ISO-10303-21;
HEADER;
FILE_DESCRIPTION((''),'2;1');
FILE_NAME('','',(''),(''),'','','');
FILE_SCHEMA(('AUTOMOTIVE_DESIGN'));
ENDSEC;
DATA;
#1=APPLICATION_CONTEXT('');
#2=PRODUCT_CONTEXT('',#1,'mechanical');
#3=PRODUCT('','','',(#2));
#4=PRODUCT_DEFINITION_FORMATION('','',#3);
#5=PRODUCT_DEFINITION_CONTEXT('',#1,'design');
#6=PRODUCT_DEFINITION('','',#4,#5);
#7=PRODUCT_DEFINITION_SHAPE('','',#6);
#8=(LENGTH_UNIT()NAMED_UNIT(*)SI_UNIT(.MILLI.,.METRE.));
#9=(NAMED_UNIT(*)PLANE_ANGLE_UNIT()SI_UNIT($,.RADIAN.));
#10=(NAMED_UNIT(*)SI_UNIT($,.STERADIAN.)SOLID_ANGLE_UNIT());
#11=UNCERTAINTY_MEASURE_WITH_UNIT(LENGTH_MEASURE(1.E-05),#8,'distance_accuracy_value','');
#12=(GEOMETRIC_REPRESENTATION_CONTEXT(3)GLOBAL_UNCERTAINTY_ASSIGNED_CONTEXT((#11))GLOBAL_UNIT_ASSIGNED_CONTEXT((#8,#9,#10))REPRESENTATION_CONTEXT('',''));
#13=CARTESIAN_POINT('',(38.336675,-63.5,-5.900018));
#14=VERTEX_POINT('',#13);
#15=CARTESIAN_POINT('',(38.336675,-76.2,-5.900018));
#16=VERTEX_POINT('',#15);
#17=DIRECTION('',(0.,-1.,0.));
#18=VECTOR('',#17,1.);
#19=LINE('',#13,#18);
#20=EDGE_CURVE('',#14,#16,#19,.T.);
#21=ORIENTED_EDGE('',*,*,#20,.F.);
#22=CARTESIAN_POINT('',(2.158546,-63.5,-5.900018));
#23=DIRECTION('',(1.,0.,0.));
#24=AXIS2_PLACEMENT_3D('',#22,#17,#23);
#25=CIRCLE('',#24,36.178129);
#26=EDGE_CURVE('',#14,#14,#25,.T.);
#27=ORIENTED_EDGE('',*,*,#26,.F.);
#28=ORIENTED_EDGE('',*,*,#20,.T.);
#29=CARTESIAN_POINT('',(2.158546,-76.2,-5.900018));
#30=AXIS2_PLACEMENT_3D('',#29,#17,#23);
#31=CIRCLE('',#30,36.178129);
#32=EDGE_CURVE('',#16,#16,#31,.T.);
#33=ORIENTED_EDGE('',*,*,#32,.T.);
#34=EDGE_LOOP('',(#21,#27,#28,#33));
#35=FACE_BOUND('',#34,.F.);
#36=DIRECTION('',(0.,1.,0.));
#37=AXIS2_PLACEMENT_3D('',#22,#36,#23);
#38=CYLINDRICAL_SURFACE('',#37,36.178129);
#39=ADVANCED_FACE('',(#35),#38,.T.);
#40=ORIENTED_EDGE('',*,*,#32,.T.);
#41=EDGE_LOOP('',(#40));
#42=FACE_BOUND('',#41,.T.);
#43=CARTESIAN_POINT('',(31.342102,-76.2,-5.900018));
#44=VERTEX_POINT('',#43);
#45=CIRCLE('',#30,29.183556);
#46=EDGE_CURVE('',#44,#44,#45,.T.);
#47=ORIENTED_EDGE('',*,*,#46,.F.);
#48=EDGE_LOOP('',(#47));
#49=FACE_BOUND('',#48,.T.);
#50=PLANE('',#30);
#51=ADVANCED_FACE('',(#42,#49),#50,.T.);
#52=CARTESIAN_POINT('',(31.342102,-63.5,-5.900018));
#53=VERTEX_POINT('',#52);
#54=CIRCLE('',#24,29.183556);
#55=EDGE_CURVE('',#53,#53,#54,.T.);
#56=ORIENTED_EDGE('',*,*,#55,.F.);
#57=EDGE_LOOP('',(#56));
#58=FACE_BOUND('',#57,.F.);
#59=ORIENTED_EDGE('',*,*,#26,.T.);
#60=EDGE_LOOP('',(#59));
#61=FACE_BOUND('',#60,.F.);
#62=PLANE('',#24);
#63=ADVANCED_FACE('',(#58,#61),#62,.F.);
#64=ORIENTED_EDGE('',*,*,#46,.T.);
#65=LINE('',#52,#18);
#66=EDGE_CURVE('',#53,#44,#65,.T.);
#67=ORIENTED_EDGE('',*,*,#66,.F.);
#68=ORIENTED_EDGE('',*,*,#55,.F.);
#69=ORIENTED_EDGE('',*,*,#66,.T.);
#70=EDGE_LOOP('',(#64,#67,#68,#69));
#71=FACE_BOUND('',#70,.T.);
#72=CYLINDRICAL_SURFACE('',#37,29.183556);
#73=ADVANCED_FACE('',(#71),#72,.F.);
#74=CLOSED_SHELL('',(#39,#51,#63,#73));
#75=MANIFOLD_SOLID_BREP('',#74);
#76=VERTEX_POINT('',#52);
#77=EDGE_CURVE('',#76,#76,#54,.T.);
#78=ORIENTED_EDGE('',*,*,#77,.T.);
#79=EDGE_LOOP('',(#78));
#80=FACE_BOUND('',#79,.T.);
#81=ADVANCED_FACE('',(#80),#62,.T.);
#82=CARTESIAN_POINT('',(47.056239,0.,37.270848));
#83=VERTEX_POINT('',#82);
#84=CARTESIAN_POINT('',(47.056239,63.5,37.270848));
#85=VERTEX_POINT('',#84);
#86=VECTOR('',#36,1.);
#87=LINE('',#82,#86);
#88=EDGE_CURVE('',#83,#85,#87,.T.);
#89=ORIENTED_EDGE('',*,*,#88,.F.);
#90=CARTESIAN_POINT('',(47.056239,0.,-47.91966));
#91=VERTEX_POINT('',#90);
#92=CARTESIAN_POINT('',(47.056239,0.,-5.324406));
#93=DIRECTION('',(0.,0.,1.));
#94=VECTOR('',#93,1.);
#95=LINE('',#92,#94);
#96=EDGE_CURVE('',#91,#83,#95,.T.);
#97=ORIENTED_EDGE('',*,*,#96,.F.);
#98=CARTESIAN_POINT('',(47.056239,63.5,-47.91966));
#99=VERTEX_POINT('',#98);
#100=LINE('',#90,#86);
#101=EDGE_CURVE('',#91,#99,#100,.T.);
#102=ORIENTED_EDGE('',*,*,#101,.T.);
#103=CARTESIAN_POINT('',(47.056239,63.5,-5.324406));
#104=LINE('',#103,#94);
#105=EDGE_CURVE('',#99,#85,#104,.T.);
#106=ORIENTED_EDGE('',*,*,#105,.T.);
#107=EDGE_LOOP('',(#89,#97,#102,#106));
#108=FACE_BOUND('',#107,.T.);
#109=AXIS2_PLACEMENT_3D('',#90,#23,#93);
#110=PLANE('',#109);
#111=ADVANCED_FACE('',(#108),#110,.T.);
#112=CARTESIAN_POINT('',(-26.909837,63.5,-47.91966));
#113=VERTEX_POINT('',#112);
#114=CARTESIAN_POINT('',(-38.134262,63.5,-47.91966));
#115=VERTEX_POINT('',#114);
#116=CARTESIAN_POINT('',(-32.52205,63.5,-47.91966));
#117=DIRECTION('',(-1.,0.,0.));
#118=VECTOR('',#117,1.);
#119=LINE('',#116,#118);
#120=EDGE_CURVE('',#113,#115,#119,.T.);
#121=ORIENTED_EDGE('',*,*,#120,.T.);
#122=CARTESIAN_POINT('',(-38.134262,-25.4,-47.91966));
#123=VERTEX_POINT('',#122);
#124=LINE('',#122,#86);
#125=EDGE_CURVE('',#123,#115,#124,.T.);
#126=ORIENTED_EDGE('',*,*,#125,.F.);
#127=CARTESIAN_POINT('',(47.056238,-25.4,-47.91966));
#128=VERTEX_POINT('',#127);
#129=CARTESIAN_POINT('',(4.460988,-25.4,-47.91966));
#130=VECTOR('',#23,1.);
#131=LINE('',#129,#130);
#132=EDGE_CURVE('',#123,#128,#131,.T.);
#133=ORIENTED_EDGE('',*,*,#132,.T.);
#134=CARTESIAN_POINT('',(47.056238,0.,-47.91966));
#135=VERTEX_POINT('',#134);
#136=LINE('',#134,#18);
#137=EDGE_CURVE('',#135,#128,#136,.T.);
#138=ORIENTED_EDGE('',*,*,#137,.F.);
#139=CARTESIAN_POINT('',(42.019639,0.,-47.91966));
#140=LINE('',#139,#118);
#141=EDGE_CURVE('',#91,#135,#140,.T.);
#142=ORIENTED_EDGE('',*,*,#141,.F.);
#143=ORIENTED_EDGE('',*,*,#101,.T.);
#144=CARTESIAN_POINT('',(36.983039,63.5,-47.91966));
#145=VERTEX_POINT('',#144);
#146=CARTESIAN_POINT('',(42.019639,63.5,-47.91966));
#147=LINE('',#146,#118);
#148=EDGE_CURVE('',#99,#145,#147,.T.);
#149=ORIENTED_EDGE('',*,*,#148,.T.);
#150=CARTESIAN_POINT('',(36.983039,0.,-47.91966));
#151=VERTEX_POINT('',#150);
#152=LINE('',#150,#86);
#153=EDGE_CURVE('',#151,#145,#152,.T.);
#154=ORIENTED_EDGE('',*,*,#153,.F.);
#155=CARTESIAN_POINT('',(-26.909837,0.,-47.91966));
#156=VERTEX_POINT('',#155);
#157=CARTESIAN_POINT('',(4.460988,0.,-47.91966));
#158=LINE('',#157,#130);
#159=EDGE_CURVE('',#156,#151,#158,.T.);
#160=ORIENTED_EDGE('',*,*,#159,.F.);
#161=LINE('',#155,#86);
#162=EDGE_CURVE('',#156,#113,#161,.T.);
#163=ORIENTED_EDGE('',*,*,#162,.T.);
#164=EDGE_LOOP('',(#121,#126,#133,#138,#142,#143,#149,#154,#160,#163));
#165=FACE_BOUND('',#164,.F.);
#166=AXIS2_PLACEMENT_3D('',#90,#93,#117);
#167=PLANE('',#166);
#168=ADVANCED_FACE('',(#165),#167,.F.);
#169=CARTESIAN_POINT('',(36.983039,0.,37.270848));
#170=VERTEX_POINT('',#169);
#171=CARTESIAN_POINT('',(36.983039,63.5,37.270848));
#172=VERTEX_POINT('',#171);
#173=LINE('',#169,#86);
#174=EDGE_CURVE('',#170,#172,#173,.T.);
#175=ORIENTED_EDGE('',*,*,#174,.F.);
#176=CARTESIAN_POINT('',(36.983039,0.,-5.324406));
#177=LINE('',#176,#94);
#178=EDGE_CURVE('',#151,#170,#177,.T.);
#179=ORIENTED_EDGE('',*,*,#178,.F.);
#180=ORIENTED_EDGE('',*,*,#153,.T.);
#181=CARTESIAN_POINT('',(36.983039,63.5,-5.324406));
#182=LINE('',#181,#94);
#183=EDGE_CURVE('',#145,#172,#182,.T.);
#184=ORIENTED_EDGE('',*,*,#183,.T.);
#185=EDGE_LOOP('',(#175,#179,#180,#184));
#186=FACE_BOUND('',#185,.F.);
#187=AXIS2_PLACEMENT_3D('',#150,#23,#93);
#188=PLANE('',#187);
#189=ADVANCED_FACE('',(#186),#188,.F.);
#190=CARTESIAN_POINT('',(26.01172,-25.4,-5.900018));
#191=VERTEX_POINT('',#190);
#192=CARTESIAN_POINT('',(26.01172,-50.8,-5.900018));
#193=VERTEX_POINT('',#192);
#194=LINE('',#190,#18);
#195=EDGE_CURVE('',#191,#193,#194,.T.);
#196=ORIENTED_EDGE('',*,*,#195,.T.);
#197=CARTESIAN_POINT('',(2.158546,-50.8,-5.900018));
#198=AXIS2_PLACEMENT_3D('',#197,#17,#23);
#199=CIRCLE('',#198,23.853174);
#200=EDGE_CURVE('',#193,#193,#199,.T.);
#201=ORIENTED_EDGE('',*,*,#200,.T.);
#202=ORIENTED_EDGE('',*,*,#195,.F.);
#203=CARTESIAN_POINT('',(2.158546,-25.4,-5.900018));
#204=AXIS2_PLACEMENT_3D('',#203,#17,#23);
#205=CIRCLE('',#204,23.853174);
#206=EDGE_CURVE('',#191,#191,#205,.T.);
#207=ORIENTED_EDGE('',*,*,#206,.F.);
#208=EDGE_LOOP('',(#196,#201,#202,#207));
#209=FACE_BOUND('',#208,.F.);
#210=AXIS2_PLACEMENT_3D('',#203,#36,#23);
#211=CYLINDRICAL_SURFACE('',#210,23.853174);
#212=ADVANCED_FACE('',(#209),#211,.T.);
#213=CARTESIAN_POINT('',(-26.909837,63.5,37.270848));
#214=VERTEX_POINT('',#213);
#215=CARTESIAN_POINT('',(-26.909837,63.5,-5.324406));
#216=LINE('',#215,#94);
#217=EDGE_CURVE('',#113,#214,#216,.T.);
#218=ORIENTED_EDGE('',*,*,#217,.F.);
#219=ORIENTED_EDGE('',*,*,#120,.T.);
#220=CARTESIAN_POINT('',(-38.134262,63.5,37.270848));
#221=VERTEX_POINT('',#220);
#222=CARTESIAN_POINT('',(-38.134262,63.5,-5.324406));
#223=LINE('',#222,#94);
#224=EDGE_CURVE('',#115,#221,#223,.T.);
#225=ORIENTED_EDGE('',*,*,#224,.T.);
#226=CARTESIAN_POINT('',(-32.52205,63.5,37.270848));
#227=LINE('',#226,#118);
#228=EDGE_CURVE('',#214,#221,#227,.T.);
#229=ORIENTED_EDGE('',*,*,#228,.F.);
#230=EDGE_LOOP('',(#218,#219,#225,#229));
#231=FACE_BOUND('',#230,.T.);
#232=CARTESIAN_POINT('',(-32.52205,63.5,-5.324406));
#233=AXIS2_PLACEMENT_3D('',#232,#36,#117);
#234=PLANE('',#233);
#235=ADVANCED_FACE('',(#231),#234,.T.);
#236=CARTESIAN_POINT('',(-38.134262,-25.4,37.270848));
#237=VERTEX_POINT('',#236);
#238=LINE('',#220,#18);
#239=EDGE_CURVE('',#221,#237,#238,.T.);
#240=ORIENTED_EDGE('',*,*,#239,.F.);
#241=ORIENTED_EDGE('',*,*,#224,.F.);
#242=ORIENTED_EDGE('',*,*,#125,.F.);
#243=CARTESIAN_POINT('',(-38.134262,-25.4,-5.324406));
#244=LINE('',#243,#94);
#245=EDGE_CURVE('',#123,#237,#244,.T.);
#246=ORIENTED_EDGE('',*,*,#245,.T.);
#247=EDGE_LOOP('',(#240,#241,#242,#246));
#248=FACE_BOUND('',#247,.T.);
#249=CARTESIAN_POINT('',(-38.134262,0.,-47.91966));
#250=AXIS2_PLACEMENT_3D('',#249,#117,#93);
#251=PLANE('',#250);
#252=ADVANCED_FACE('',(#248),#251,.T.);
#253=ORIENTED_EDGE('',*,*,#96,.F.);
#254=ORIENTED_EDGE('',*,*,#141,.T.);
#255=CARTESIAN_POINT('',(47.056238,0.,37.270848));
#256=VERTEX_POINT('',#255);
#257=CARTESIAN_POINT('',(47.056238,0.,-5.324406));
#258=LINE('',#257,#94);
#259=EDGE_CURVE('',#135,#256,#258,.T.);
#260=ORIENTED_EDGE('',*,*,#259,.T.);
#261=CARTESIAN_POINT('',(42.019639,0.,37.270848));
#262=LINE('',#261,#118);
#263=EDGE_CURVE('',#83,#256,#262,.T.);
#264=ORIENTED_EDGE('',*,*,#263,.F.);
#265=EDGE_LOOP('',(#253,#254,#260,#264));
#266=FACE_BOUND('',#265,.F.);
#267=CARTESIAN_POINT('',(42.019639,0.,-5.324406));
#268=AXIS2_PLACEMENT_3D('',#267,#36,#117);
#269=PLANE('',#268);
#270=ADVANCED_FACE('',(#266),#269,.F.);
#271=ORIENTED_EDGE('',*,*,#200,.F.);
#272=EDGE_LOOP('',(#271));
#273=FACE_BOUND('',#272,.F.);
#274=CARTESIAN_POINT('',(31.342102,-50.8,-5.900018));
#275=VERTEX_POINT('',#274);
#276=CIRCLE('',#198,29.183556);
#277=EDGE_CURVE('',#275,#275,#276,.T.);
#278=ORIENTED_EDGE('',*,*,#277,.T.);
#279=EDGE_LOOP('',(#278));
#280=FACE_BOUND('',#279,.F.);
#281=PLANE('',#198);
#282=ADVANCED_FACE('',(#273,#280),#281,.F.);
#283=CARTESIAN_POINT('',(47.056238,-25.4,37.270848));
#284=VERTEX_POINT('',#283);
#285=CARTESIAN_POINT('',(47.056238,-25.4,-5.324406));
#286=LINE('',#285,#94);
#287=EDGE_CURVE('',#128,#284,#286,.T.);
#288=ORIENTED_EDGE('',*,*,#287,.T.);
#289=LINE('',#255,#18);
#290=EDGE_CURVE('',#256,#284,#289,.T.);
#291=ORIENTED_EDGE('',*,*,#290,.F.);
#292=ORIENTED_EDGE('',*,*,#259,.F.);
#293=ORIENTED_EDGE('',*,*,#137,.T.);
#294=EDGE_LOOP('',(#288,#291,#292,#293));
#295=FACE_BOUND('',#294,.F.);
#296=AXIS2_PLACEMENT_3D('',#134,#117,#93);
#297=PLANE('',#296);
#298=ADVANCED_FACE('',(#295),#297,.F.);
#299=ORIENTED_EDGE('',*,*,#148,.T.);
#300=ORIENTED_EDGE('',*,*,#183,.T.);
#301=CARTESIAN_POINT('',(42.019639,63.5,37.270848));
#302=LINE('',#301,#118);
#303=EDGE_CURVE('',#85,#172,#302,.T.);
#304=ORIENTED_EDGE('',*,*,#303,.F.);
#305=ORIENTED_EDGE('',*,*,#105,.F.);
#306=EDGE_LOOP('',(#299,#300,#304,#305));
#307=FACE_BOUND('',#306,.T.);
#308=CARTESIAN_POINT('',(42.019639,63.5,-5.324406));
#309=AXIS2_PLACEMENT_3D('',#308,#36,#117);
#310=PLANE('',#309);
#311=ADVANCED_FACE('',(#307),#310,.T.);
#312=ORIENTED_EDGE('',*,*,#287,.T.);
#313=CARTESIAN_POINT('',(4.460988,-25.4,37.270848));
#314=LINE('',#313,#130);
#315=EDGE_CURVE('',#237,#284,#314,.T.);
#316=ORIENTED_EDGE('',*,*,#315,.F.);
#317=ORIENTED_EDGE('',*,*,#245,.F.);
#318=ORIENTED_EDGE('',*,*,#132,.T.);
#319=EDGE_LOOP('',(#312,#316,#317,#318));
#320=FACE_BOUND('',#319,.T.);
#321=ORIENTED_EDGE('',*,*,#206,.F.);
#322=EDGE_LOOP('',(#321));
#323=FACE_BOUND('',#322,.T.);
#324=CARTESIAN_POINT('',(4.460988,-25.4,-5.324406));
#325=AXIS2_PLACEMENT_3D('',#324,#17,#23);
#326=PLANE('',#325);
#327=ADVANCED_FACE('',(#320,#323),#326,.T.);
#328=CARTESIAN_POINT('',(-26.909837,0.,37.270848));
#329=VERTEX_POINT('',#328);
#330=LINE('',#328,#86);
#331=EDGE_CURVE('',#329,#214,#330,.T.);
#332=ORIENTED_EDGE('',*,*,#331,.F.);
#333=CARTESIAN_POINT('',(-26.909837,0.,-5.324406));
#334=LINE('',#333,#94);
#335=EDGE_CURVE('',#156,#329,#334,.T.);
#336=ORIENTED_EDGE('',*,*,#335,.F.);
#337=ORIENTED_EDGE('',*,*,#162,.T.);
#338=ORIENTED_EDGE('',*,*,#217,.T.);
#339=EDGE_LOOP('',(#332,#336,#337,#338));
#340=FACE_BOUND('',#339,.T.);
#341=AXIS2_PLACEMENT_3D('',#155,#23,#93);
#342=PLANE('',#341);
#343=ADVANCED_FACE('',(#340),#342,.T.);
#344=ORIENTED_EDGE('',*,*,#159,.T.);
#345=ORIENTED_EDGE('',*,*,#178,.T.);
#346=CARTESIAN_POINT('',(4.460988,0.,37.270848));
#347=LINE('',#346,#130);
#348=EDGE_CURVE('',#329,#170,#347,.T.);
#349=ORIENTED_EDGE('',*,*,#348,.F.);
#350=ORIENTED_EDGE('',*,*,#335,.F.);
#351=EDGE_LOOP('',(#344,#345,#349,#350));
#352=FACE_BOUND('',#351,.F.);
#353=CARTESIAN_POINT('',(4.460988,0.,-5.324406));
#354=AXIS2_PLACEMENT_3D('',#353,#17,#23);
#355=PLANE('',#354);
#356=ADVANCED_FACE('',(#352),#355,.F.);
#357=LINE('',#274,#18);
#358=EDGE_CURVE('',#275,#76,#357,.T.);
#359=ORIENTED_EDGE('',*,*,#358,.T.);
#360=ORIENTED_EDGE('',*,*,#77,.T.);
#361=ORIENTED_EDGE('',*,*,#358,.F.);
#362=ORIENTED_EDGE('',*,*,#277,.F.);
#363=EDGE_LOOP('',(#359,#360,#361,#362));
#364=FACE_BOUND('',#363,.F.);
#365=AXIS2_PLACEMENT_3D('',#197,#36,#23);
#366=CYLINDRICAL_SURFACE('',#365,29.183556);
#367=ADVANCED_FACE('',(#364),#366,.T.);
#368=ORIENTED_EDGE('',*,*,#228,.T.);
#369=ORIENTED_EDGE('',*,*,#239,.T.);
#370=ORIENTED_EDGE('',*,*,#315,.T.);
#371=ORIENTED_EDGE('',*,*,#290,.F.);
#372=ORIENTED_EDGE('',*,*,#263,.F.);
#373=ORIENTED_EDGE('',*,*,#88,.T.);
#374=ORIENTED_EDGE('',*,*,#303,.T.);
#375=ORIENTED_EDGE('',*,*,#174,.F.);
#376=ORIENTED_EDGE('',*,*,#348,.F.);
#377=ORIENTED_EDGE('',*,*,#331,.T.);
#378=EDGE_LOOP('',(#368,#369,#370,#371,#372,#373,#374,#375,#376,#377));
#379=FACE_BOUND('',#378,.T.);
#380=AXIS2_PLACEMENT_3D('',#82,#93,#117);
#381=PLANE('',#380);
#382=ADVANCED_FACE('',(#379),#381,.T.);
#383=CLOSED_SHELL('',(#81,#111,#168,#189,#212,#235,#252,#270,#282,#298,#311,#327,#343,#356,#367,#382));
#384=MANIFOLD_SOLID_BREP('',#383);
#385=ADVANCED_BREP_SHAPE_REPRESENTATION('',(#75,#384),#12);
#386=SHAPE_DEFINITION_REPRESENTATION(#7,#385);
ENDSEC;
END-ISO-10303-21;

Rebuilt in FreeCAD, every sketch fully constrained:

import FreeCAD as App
import Part
import Sketcher

V = App.Vector
Q = App.Units.Quantity


def add_polygon(sketch, points):
    """Adds a closed chain of lines whose ends are joined by coincident constraints."""
    first, n = sketch.GeometryCount, len(points)
    for a, b in zip(points, points[1:] + points[:1]):
        sketch.addGeometry(Part.LineSegment(App.Vector(*a, 0), App.Vector(*b, 0)), False)
    for i in range(n):
        sketch.addConstraint(Sketcher.Constraint("Coincident", first + i, 2, first + (i + 1) % n, 1))

doc = App.newDocument("Part")
body = doc.addObject("PartDesign::Body", "Body")

# Sketch on XZ plane
sketch1 = body.newObject("Sketcher::SketchObject", "Sketch")
sketch1.AttachmentSupport = (doc.getObject("XZ_Plane"), [""])
sketch1.MapMode = "FlatFace"
add_polygon(sketch1, [(-38.134262, 37.270848), (-38.134262, -47.91966), (47.056238, -47.91966), (47.056238, 37.270848)])  # lines 0-3
sketch1.addConstraint(Sketcher.Constraint("Vertical", 0))
sketch1.addConstraint(Sketcher.Constraint("Horizontal", 1))
sketch1.addConstraint(Sketcher.Constraint("Vertical", 2))
sketch1.addConstraint(Sketcher.Constraint("Horizontal", 3))
sketch1.addConstraint(Sketcher.Constraint("DistanceX", 1, 1, 1, 2, 85.190501))
sketch1.addConstraint(Sketcher.Constraint("DistanceY", 0, 2, 0, 1, 85.190509))
sketch1.addConstraint(Sketcher.Constraint("DistanceY", 0, 2, -1, 1, 47.91966))
sketch1.addConstraint(Sketcher.Constraint("DistanceX", -1, 1, 1, 2, 47.056238))
pad1 = body.newObject("PartDesign::Pad", "Pad")
pad1.Profile = sketch1
pad1.Length = Q("1 in")

# Sketch on XZ plane
sketch2 = body.newObject("Sketcher::SketchObject", "Sketch001")
sketch2.AttachmentSupport = (doc.getObject("XZ_Plane"), [""])
sketch2.MapMode = "FlatFace"
add_polygon(sketch2, [(47.056239, 37.270848), (47.056239, -47.91966), (36.983039, -47.91966), (36.983039, 37.270848)])  # lines 0-3
add_polygon(sketch2, [(-26.909837, 37.270848), (-26.909837, -47.91966), (-38.134262, -47.91966), (-38.134262, 37.270848)])  # lines 4-7
sketch2.addConstraint(Sketcher.Constraint("Vertical", 0))
sketch2.addConstraint(Sketcher.Constraint("Horizontal", 1))
sketch2.addConstraint(Sketcher.Constraint("Vertical", 2))
sketch2.addConstraint(Sketcher.Constraint("Horizontal", 3))
sketch2.addConstraint(Sketcher.Constraint("Vertical", 4))
sketch2.addConstraint(Sketcher.Constraint("Horizontal", 5))
sketch2.addConstraint(Sketcher.Constraint("Vertical", 6))
sketch2.addConstraint(Sketcher.Constraint("Horizontal", 7))
sketch2.addConstraint(Sketcher.Constraint("Horizontal", 1, 2, 4, 2))
sketch2.addConstraint(Sketcher.Constraint("Horizontal", 3, 2, 6, 2))
sketch2.addConstraint(Sketcher.Constraint("DistanceX", 1, 2, 1, 1, 10.0732))
sketch2.addConstraint(Sketcher.Constraint("DistanceY", 0, 2, 0, 1, 85.190509))
sketch2.addConstraint(Sketcher.Constraint("DistanceX", 5, 2, 1, 2, 75.117301))
sketch2.addConstraint(Sketcher.Constraint("DistanceX", 5, 2, 5, 1, 11.224425))
sketch2.addConstraint(Sketcher.Constraint("DistanceX", -1, 1, 0, 2, 47.056239))
sketch2.addConstraint(Sketcher.Constraint("DistanceY", 0, 2, -1, 1, 47.91966))
pad2 = body.newObject("PartDesign::Pad", "Pad001")
pad2.Profile = sketch2
pad2.Length = Q("2.5 in")
pad2.Reversed = True

# Sketch on XZ plane
sketch3 = body.newObject("Sketcher::SketchObject", "Sketch002")
sketch3.AttachmentSupport = (doc.getObject("XZ_Plane"), [""])
sketch3.MapMode = "FlatFace"
sketch3.AttachmentOffset = App.Placement(V(0, 0, 1 * 25.4), App.Rotation())
sketch3.addGeometry(Part.Circle(V(2.158546, -5.900018, 0), V(0, 0, 1), 23.853174), False)
sketch3.addConstraint(Sketcher.Constraint("Diameter", 0, 47.706348))
sketch3.addConstraint(Sketcher.Constraint("DistanceY", 0, 3, -1, 1, 5.900018))
sketch3.addConstraint(Sketcher.Constraint("DistanceX", -1, 1, 0, 3, 2.158546))
pad3 = body.newObject("PartDesign::Pad", "Pad002")
pad3.Profile = sketch3
pad3.Length = Q("1 in")

# Sketch on XZ plane
sketch4 = body.newObject("Sketcher::SketchObject", "Sketch003")
sketch4.AttachmentSupport = (doc.getObject("XZ_Plane"), [""])
sketch4.MapMode = "FlatFace"
sketch4.AttachmentOffset = App.Placement(V(0, 0, 2 * 25.4), App.Rotation())
sketch4.addGeometry(Part.Circle(V(2.158546, -5.900018, 0), V(0, 0, 1), 29.183556), False)
sketch4.addConstraint(Sketcher.Constraint("Diameter", 0, 58.367112))
sketch4.addConstraint(Sketcher.Constraint("DistanceY", 0, 3, -1, 1, 5.900018))
sketch4.addConstraint(Sketcher.Constraint("DistanceX", -1, 1, 0, 3, 2.158546))
pad4 = body.newObject("PartDesign::Pad", "Pad003")
pad4.Profile = sketch4
pad4.Length = Q("0.5 in")
body2 = doc.addObject("PartDesign::Body", "Body001")

# Sketch on XZ plane
sketch5 = body2.newObject("Sketcher::SketchObject", "Sketch004")
sketch5.AttachmentSupport = (doc.getObject("XZ_Plane001"), [""])
sketch5.MapMode = "FlatFace"
sketch5.AttachmentOffset = App.Placement(V(0, 0, 2.5 * 25.4), App.Rotation())
sketch5.addGeometry(Part.Circle(V(2.158546, -5.900018, 0), V(0, 0, 1), 36.178129), False)
sketch5.addGeometry(Part.Circle(V(2.158546, -5.900018, 0), V(0, 0, 1), 29.183556), False)
sketch5.addConstraint(Sketcher.Constraint("Coincident", 1, 3, 0, 3))
sketch5.addConstraint(Sketcher.Constraint("Diameter", 0, 72.356258))
sketch5.addConstraint(Sketcher.Constraint("Diameter", 1, 58.367112))
sketch5.addConstraint(Sketcher.Constraint("DistanceY", 0, 3, -1, 1, 5.900018))
sketch5.addConstraint(Sketcher.Constraint("DistanceX", -1, 1, 0, 3, 2.158546))
pad5 = body2.newObject("PartDesign::Pad", "Pad004")
pad5.Profile = sketch5
pad5.Length = Q("0.5 in")

doc.recompute()
